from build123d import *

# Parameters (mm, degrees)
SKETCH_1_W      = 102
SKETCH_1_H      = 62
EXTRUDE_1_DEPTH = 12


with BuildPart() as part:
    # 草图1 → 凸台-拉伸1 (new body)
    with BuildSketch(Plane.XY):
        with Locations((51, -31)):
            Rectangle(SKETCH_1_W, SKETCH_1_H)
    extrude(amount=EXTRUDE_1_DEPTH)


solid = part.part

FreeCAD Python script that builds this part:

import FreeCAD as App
import Part
import Sketcher
from FreeCAD import Vector
Q = App.Units.Quantity


def add_polygon(sketch, points):
    """Adds a closed chain of lines whose ends are joined by coincident constraints."""
    first, n = sketch.GeometryCount, len(points)
    for a, b in zip(points, points[1:] + points[:1]):
        sketch.addGeometry(Part.LineSegment(App.Vector(*a, 0), App.Vector(*b, 0)), False)
    for i in range(n):
        sketch.addConstraint(Sketcher.Constraint("Coincident", first + i, 2, first + (i + 1) % n, 1))

doc = App.newDocument("Part")
body = doc.addObject("PartDesign::Body", "Body")

# Sketch on XY plane
sketch1 = doc.addObject("Sketcher::SketchObject", "Sketch")
body.addObject(sketch1)
sketch1.AttachmentSupport = (doc.XY_Plane, [""])
sketch1.MapMode = "FlatFace"
add_polygon(sketch1, [(0, 0), (0, -62), (102, -62), (102, 0)])  # lines 0-3
sketch1.addConstraint([
    Sketcher.Constraint("Vertical", 0),
    Sketcher.Constraint("Horizontal", 1),
    Sketcher.Constraint("Vertical", 2),
    Sketcher.Constraint("Horizontal", 3),
    Sketcher.Constraint("Coincident", 3, 2, -1, 1),
    Sketcher.Constraint("DistanceX", 1, 1, 1, 2, Q("102 mm")),
    Sketcher.Constraint("DistanceY", 0, 2, 0, 1, Q("62 mm")),
])
pad1 = doc.addObject("PartDesign::Pad", "Pad")
body.addObject(pad1)
pad1.Profile = sketch1
pad1.Length = 12

doc.recompute()
